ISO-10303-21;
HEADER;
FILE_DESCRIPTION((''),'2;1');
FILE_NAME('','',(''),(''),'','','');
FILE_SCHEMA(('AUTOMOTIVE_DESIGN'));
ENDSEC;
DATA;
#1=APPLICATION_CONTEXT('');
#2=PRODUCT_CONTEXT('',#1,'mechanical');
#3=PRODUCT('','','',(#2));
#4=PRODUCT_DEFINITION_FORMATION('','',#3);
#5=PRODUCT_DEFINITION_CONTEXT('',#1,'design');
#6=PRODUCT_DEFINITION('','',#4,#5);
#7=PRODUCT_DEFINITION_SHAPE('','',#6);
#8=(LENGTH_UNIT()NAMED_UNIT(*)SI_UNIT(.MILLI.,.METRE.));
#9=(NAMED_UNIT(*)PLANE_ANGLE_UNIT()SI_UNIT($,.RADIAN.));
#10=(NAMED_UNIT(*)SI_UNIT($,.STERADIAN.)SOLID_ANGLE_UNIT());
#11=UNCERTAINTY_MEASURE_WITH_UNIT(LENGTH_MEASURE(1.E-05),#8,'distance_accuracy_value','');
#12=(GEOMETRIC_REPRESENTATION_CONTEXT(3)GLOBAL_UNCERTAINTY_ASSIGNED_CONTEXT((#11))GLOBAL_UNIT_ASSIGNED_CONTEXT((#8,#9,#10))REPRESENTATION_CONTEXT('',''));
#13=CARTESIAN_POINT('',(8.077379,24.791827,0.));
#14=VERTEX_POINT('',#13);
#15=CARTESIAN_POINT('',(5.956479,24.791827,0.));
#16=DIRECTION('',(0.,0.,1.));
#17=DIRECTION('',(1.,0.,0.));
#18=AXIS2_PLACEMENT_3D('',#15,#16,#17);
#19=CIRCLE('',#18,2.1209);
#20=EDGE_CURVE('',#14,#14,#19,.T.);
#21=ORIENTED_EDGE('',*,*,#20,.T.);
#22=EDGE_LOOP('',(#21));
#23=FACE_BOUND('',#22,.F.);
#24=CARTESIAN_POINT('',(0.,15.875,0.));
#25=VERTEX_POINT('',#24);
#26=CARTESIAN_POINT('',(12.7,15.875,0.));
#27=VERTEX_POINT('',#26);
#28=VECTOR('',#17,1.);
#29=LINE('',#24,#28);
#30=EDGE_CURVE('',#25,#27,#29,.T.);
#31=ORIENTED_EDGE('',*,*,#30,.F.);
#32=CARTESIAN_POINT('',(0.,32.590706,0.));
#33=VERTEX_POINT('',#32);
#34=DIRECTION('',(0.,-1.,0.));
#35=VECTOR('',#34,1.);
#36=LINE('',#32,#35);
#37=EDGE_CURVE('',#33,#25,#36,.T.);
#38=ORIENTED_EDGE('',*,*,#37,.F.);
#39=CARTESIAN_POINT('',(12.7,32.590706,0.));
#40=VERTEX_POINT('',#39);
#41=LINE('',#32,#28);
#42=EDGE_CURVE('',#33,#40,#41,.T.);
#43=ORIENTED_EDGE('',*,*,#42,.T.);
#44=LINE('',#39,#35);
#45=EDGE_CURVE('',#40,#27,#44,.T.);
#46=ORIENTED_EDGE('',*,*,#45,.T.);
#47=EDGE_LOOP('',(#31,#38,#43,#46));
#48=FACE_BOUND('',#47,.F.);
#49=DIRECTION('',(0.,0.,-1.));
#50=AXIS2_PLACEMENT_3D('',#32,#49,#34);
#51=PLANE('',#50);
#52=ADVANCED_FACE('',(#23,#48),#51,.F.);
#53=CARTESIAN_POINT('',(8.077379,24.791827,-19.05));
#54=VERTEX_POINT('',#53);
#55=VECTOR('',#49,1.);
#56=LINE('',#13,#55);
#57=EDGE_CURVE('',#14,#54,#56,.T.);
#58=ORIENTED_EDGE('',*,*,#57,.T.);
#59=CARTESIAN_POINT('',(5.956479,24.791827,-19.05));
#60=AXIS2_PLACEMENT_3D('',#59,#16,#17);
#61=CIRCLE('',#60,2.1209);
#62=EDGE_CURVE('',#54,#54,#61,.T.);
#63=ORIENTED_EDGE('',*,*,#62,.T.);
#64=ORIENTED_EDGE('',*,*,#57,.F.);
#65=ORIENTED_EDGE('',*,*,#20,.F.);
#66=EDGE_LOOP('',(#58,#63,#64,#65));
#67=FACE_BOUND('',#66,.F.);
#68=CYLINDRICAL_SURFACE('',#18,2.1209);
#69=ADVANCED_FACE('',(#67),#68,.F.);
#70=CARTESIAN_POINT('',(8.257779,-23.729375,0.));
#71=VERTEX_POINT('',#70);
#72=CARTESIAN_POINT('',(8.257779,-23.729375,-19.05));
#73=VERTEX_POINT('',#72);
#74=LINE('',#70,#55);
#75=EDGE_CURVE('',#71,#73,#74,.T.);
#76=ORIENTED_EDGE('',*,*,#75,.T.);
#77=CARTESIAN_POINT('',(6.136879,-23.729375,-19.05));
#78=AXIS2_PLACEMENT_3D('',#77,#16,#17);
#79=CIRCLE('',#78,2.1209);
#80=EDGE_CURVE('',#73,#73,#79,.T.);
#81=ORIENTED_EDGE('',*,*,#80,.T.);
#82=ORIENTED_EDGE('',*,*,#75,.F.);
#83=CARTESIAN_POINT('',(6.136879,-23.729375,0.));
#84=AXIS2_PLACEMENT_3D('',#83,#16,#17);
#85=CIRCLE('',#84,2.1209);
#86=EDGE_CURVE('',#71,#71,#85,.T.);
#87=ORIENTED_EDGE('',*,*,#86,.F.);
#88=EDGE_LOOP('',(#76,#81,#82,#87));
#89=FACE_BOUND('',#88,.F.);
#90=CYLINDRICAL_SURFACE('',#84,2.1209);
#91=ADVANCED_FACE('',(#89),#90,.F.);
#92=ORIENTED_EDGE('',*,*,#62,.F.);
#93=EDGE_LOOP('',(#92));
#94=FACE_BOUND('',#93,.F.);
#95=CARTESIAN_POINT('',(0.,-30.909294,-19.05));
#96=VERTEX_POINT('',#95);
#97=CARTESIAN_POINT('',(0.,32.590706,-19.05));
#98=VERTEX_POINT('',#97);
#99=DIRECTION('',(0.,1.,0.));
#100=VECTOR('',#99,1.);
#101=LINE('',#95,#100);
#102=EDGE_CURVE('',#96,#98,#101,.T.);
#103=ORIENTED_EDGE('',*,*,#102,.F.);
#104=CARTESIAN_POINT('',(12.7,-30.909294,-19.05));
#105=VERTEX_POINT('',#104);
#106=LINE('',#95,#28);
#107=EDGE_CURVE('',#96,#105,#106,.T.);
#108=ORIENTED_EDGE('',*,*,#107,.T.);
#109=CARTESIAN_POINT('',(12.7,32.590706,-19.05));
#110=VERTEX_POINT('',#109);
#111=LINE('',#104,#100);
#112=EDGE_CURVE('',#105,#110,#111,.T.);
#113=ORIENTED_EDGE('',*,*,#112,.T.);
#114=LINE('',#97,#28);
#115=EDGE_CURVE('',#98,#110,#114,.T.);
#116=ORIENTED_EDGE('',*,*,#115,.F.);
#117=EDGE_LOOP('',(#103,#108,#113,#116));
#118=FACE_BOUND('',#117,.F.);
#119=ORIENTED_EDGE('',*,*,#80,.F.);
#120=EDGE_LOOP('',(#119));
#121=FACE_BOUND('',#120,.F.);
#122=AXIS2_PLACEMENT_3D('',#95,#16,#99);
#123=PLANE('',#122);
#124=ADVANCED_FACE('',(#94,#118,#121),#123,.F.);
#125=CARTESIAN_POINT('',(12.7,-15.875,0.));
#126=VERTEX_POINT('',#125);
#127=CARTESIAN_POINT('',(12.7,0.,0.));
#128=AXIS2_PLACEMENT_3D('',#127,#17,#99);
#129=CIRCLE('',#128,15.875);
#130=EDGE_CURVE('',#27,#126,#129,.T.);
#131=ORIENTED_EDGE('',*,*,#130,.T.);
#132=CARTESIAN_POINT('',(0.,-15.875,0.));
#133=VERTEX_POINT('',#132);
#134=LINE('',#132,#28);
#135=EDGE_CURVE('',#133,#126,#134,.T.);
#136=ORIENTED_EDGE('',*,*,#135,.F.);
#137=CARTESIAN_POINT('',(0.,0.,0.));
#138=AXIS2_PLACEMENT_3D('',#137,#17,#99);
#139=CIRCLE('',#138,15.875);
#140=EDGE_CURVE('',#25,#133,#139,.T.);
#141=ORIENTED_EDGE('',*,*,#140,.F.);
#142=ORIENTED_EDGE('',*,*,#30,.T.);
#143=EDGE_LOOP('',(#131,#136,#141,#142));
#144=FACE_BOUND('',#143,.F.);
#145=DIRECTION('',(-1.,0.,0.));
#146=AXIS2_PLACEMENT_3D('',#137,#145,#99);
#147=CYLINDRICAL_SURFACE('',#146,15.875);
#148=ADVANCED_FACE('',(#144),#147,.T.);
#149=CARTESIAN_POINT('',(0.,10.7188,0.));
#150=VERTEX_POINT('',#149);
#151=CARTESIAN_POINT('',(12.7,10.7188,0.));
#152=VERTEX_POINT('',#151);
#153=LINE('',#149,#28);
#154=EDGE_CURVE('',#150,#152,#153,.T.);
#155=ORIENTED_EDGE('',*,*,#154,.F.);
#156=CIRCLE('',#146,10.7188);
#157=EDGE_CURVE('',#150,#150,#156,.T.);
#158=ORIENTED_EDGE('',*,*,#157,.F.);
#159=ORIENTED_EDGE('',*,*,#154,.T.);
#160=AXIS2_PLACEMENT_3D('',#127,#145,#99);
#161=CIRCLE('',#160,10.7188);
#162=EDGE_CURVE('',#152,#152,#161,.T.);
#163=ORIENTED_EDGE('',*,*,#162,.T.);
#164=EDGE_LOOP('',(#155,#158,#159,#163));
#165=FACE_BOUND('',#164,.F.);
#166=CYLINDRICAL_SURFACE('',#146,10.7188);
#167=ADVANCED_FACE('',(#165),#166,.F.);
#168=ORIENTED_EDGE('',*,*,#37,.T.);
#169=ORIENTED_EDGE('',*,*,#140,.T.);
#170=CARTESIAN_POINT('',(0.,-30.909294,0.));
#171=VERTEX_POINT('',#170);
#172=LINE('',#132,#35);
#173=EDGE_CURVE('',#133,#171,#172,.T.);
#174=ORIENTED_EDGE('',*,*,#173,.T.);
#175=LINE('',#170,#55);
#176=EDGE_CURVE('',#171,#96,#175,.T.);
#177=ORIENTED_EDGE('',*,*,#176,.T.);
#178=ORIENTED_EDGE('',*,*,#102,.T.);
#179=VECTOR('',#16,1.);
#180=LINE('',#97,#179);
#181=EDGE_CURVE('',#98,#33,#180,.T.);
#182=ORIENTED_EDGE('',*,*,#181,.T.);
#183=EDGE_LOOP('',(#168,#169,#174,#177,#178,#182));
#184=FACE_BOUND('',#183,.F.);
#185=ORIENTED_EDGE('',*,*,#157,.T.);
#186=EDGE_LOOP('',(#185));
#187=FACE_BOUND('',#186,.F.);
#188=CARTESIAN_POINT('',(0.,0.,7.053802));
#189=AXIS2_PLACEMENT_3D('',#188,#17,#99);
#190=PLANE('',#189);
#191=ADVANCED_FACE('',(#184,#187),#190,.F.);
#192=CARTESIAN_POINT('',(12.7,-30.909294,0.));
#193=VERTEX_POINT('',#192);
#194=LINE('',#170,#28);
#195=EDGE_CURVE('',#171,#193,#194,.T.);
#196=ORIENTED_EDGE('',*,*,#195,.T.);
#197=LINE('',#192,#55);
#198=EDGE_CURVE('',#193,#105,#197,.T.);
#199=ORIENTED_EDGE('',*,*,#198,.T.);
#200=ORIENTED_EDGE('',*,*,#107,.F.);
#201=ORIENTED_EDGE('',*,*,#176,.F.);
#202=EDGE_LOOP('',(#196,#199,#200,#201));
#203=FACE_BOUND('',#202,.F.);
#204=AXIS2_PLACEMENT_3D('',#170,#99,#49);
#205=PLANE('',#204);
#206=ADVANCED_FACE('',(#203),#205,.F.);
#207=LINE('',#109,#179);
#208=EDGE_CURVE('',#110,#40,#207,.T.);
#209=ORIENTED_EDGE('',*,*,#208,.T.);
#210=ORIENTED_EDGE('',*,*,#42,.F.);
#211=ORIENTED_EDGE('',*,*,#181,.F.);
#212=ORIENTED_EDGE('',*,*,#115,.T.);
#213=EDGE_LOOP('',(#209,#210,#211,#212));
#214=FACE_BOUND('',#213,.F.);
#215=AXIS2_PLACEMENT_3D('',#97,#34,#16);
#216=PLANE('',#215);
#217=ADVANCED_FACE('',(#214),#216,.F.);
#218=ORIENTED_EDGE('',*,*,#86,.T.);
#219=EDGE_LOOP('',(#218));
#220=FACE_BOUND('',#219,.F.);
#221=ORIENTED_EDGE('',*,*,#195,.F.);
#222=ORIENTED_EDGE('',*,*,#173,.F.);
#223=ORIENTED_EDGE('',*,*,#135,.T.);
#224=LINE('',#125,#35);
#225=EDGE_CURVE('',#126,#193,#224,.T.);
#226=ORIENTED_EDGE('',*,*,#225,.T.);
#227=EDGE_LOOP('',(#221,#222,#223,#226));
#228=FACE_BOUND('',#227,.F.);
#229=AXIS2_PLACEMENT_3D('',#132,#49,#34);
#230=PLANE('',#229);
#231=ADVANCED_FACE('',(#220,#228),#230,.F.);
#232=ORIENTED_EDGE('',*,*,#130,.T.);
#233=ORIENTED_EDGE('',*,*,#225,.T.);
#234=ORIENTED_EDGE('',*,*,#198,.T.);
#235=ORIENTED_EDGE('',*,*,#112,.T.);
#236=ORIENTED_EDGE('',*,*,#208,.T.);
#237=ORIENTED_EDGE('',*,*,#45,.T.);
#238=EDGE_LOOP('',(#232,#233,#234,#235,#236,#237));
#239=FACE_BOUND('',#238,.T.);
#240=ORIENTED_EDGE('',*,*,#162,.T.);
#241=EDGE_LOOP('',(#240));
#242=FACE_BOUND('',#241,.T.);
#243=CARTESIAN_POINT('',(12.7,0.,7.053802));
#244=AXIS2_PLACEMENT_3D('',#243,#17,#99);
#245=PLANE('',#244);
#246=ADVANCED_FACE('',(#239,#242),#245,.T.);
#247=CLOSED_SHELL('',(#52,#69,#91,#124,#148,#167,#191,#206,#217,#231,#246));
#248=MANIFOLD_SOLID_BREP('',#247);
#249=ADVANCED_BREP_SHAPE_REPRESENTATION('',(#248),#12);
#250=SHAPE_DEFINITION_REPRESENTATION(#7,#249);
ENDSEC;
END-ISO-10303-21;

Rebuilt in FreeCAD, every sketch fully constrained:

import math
import FreeCAD as App
import Part
import Sketcher
Q = App.Units.Quantity

doc = App.newDocument("Part")
body = doc.addObject("PartDesign::Body", "Body")

sketch1 = doc.addObject("Sketcher::SketchObject", "Sketch")
body.addObject(sketch1)
sketch1.AttachmentSupport = (doc.YZ_Plane, [""])
sketch1.MapMode = "FlatFace"
sketch1.addGeometry([
    Part.ArcOfCircle(Part.Circle(App.Vector(0, 0, 0), App.Vector(0, 0, 1), 16), math.radians(0), math.radians(180)),
    Part.LineSegment(App.Vector(-16, 0, 0), App.Vector(-31, 0, 0)),
    Part.LineSegment(App.Vector(-31, 0, 0), App.Vector(-31, -19, 0)),
    Part.LineSegment(App.Vector(-31, -19, 0), App.Vector(33, -19, 0)),
    Part.LineSegment(App.Vector(33, -19, 0), App.Vector(33, 0, 0)),
    Part.LineSegment(App.Vector(33, 0, 0), App.Vector(16, 0, 0)),
    Part.Circle(App.Vector(0, 0, 0), App.Vector(0, 0, 1), 11),
], False)
sketch1.addConstraint([
    Sketcher.Constraint("Coincident", 0, 2, 1, 1),
    Sketcher.Constraint("Coincident", 1, 2, 2, 1),
    Sketcher.Constraint("Coincident", 2, 2, 3, 1),
    Sketcher.Constraint("Coincident", 3, 2, 4, 1),
    Sketcher.Constraint("Coincident", 4, 2, 5, 1),
    Sketcher.Constraint("Coincident", 5, 2, 0, 1),
    Sketcher.Constraint("Horizontal", 1),
    Sketcher.Constraint("Vertical", 2),
    Sketcher.Constraint("Horizontal", 3),
    Sketcher.Constraint("Vertical", 4),
    Sketcher.Constraint("Horizontal", 5),
    Sketcher.Constraint("Coincident", 0, 3, -1, 1),
    Sketcher.Constraint("Coincident", 6, 3, -1, 1),
    Sketcher.Constraint("PointOnObject", 0, 2, -1),
    Sketcher.Constraint("PointOnObject", 4, 2, -1),
    Sketcher.Constraint("Diameter", 6, Q("0.844 in")),
    Sketcher.Constraint("DistanceX", 3, 1, 3, 2, Q("2.5 in")),
    Sketcher.Constraint("Radius", 0, Q("0.625 in")),
    Sketcher.Constraint("DistanceY", 2, 2, 2, 1, Q("0.75 in")),
    Sketcher.Constraint("DistanceX", 1, 2, 1, 1, Q("15.034294 mm")),
])
pad1 = doc.addObject("PartDesign::Pad", "Pad")
body.addObject(pad1)
pad1.Profile = sketch1
pad1.Length = Q("0.5 in")

sketch2 = doc.addObject("Sketcher::SketchObject", "Sketch001")
body.addObject(sketch2)
sketch2.AttachmentSupport = (doc.XY_Plane, [""])
sketch2.MapMode = "FlatFace"
sketch2.addGeometry(Part.Circle(App.Vector(6, 24.8, 0), App.Vector(0, 0, 1), 2.1), False)
sketch2.addConstraint([
    Sketcher.Constraint("Diameter", 0, Q("0.167 in")),
    Sketcher.Constraint("DistanceX", -1, 1, 0, 3, Q("5.956479 mm")),
    Sketcher.Constraint("DistanceY", -1, 1, 0, 3, Q("24.791827 mm")),
])
pocket1 = doc.addObject("PartDesign::Pocket", "Pocket")
body.addObject(pocket1)
pocket1.Profile = sketch2
pocket1.Length = Q("1 in")

sketch3 = doc.addObject("Sketcher::SketchObject", "Sketch002")
body.addObject(sketch3)
sketch3.AttachmentSupport = (doc.XY_Plane, [""])
sketch3.MapMode = "FlatFace"
sketch3.addGeometry(Part.Circle(App.Vector(6.1, -23.7, 0), App.Vector(0, 0, 1), 2.1), False)
sketch3.addConstraint([
    Sketcher.Constraint("Diameter", 0, Q("0.167 in")),
    Sketcher.Constraint("DistanceX", -1, 1, 0, 3, Q("6.136879 mm")),
    Sketcher.Constraint("DistanceY", 0, 3, -1, 1, Q("23.729375 mm")),
])
pocket2 = doc.addObject("PartDesign::Pocket", "Pocket001")
body.addObject(pocket2)
pocket2.Profile = sketch3
pocket2.Length = Q("1 in")

doc.recompute()
